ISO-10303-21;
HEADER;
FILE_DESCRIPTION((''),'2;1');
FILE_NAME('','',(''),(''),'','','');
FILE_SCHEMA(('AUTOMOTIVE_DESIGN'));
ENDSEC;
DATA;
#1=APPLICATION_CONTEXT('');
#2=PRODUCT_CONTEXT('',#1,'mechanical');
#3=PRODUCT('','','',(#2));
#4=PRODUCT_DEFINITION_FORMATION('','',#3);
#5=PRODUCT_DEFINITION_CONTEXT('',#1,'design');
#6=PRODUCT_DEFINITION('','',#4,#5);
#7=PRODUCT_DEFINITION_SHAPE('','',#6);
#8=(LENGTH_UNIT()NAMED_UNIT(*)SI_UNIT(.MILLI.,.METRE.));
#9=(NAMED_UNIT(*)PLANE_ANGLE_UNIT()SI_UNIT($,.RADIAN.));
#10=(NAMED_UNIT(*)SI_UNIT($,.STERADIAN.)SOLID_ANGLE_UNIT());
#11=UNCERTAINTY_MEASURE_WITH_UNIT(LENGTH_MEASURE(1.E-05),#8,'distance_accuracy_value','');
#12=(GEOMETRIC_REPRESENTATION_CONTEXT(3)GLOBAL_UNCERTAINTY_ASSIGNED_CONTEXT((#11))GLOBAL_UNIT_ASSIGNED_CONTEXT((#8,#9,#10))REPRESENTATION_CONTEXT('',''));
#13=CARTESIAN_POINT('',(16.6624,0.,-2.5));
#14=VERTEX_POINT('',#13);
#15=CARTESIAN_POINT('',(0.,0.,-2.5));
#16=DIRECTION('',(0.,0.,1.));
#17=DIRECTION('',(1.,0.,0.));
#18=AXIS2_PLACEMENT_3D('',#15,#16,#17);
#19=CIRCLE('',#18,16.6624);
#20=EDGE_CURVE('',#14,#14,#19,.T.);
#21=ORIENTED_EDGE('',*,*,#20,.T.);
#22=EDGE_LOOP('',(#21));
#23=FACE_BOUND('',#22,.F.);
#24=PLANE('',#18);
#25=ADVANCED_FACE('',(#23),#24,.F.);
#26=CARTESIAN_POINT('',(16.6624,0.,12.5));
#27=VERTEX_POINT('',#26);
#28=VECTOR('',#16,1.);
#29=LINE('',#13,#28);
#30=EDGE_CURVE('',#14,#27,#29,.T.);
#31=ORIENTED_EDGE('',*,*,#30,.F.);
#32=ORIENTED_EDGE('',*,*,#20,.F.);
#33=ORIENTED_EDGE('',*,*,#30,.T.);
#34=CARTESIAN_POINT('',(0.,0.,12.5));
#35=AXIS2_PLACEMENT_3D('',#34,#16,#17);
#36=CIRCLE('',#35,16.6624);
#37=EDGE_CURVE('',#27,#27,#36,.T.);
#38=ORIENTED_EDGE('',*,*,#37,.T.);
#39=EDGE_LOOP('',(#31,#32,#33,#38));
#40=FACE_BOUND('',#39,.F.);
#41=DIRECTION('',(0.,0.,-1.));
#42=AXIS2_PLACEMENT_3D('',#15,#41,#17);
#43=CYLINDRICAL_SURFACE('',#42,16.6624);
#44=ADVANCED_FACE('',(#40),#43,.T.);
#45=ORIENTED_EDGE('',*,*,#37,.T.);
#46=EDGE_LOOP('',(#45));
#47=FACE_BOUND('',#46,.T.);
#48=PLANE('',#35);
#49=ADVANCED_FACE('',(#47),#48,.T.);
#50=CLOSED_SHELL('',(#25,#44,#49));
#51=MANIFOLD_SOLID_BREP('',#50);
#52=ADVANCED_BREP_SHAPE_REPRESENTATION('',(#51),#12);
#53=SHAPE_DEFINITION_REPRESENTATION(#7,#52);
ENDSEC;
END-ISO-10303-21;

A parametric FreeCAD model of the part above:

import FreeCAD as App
import Part
import Sketcher
from FreeCAD import Vector
Q = App.Units.Quantity

doc = App.newDocument("Part")
body = doc.addObject("PartDesign::Body", "Body")

# Sketch on XY plane
sketch1 = body.newObject("Sketcher::SketchObject", "Sketch")
sketch1.AttachmentSupport = (doc.getObject("XY_Plane"), [""])
sketch1.MapMode = "FlatFace"
sketch1.AttachmentOffset = App.Placement(Vector(0, 0, -2.5), App.Rotation())
sketch1.addGeometry(Part.Circle(Vector(0, 0, 0), Vector(0, 0, 1), 17), False)
sketch1.addConstraint([
    Sketcher.Constraint("Coincident", 0, 3, -1, 1),
    Sketcher.Constraint("Diameter", 0, Q("33.3248 mm")),
])
pad1 = body.newObject("PartDesign::Pad", "Pad")
pad1.Profile = sketch1
pad1.Length = 15

doc.recompute()
